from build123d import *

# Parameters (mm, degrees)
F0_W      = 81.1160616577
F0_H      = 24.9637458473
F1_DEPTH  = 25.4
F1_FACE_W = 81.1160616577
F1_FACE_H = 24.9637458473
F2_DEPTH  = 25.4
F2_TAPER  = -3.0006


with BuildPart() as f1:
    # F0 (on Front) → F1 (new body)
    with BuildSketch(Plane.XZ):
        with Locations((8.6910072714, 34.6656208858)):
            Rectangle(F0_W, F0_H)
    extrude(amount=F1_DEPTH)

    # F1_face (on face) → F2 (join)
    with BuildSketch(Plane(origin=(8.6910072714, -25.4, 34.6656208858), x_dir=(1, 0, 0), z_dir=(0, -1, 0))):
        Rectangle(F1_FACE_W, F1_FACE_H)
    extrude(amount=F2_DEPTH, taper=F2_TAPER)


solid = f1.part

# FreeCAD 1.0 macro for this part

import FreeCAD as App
import Part
import Sketcher

V = App.Vector
Q = App.Units.Quantity

doc = App.newDocument("Part")
body = doc.addObject("PartDesign::Body", "Body")

sketch1 = body.newObject("Sketcher::SketchObject", "Sketch")
sketch1.AttachmentSupport = (doc.getObject("XZ_Plane"), [""])
sketch1.MapMode = "FlatFace"
sketch1.addGeometry(Part.LineSegment(V(-31.867024, 47.147494, 0), V(-31.867024, 22.183748, 0)), False)
sketch1.addGeometry(Part.LineSegment(V(-31.867024, 22.183748, 0), V(49.249038, 22.183748, 0)), False)
sketch1.addGeometry(Part.LineSegment(V(49.249038, 22.183748, 0), V(49.249038, 47.147494, 0)), False)
sketch1.addGeometry(Part.LineSegment(V(49.249038, 47.147494, 0), V(-31.867024, 47.147494, 0)), False)
sketch1.addConstraint(Sketcher.Constraint("Coincident", 0, 2, 1, 1))
sketch1.addConstraint(Sketcher.Constraint("Coincident", 1, 2, 2, 1))
sketch1.addConstraint(Sketcher.Constraint("Coincident", 2, 2, 3, 1))
sketch1.addConstraint(Sketcher.Constraint("Coincident", 3, 2, 0, 1))
sketch1.addConstraint(Sketcher.Constraint("Vertical", 0))
sketch1.addConstraint(Sketcher.Constraint("Horizontal", 1))
sketch1.addConstraint(Sketcher.Constraint("Vertical", 2))
sketch1.addConstraint(Sketcher.Constraint("Horizontal", 3))
sketch1.addConstraint(Sketcher.Constraint("DistanceX", 1, 1, 1, 2, Q("81.116062 mm")))
sketch1.addConstraint(Sketcher.Constraint("DistanceY", 0, 2, 0, 1, Q("24.963746 mm")))
sketch1.addConstraint(Sketcher.Constraint("DistanceX", -1, 1, 1, 2, Q("49.249038 mm")))
sketch1.addConstraint(Sketcher.Constraint("DistanceY", -1, 1, 0, 2, Q("22.183748 mm")))
pad1 = body.newObject("PartDesign::Pad", "Pad")
pad1.Profile = sketch1
pad1.Length = Q("1 in")

sketch2 = body.newObject("Sketcher::SketchObject", "Sketch001")
sketch2.AttachmentSupport = (doc.getObject("XZ_Plane"), [""])
sketch2.MapMode = "FlatFace"
sketch2.AttachmentOffset = App.Placement(V(0, 0, 1 * 25.4), App.Rotation())
sketch2.addGeometry(Part.LineSegment(V(-31.867024, 47.147494, 0), V(-31.867024, 22.183748, 0)), False)
sketch2.addGeometry(Part.LineSegment(V(-31.867024, 22.183748, 0), V(49.249038, 22.183748, 0)), False)
sketch2.addGeometry(Part.LineSegment(V(49.249038, 22.183748, 0), V(49.249038, 47.147494, 0)), False)
sketch2.addGeometry(Part.LineSegment(V(49.249038, 47.147494, 0), V(-31.867024, 47.147494, 0)), False)
sketch2.addConstraint(Sketcher.Constraint("Coincident", 0, 2, 1, 1))
sketch2.addConstraint(Sketcher.Constraint("Coincident", 1, 2, 2, 1))
sketch2.addConstraint(Sketcher.Constraint("Coincident", 2, 2, 3, 1))
sketch2.addConstraint(Sketcher.Constraint("Coincident", 3, 2, 0, 1))
sketch2.addConstraint(Sketcher.Constraint("Vertical", 0))
sketch2.addConstraint(Sketcher.Constraint("Horizontal", 1))
sketch2.addConstraint(Sketcher.Constraint("Vertical", 2))
sketch2.addConstraint(Sketcher.Constraint("Horizontal", 3))
sketch2.addConstraint(Sketcher.Constraint("DistanceX", 1, 1, 1, 2, Q("81.116062 mm")))
sketch2.addConstraint(Sketcher.Constraint("DistanceY", 0, 2, 0, 1, Q("24.963746 mm")))
sketch2.addConstraint(Sketcher.Constraint("DistanceX", -1, 1, 1, 2, Q("49.249038 mm")))
sketch2.addConstraint(Sketcher.Constraint("DistanceY", -1, 1, 0, 2, Q("22.183748 mm")))
pad2 = body.newObject("PartDesign::Pad", "Pad001")
pad2.Profile = sketch2
pad2.Length = Q("1 in")
pad2.TaperAngle = 3.0006

doc.recompute()
